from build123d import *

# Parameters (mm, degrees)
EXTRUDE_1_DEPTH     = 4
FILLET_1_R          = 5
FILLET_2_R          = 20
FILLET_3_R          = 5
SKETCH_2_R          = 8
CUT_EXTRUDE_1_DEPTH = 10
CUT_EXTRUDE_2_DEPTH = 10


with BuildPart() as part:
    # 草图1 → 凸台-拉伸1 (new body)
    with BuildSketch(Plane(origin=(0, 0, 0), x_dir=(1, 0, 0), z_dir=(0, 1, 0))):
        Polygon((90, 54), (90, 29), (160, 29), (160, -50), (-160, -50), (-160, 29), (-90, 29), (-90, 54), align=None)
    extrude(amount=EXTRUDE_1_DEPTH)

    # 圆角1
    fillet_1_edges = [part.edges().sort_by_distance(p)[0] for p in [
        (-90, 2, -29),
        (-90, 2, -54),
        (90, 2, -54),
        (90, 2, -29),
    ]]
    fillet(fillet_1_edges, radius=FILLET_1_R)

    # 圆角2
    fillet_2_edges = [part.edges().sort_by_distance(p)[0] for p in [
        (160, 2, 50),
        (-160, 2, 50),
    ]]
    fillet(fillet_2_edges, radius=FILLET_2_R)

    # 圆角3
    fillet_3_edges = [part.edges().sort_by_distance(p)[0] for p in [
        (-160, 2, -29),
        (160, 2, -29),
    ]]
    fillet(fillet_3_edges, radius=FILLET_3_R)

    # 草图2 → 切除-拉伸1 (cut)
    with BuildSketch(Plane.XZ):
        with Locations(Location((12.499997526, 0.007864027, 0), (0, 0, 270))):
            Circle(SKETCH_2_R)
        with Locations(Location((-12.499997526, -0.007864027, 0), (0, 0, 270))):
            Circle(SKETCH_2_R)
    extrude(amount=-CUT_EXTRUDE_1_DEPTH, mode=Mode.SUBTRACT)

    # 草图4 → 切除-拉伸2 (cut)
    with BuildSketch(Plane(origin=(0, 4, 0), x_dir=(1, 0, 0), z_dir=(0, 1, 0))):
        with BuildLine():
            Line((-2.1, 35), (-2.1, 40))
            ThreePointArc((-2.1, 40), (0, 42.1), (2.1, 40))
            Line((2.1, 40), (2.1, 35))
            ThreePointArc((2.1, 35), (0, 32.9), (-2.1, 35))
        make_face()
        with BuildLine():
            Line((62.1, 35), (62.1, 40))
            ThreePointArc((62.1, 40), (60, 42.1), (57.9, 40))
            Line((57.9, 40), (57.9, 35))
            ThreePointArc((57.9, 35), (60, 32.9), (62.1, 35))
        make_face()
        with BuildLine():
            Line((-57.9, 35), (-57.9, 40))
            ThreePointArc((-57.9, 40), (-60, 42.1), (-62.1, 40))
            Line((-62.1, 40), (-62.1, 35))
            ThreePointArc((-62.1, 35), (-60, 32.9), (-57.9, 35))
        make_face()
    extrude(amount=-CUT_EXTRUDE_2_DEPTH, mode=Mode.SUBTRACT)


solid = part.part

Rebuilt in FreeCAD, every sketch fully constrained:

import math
import FreeCAD as App
import Part
import Sketcher
from FreeCAD import Vector


def edges_at(feature, points):
    """Names of the edges that pass closest to the given points."""
    edges = feature.Shape.Edges
    near = lambda p: min(range(len(edges)), key=lambda i: edges[i].distToShape(Part.Vertex(*p))[0])
    return sorted({f"Edge{near(p) + 1}" for p in points})

doc = App.newDocument("Part")
params = doc.addObject("Spreadsheet::Sheet", "Params")
for row, (alias, value) in enumerate([
    ("sketch1_width", "180 mm"),
    ("sketch1_width2", "70 mm"),
    ("sketch1_height", "25 mm"),
    ("sketch1_height2", "79 mm"),
    ("pad1_length", "4 mm"),
    ("fillet_radius", "5 mm"),
    ("fillet2_radius", "20 mm"),
    ("fillet3_radius", "5 mm"),
    ("sketch2_diameter", "16 mm"),
    ("pocket1_length", "10 mm"),
    ("sketch3_radius", "2.1 mm"),
    ("sketch3_height", "5 mm"),
    ("pocket2_length", "10 mm"),
], start=1):
    params.set(f"A{row}", alias)
    params.set(f"B{row}", "=" + value)
    params.setAlias(f"B{row}", alias)

body = doc.addObject("PartDesign::Body", "Body")

# Sketch on XZ plane
sketch1 = body.newObject("Sketcher::SketchObject", "Sketch")
sketch1.AttachmentSupport = (doc.getObject("XZ_Plane"), [""])
sketch1.MapMode = "FlatFace"
sketch1.addGeometry([
    Part.LineSegment(Vector(90, -29, 0), Vector(90, -54, 0)),  # 0
    Part.LineSegment(Vector(90, -54, 0), Vector(-90, -54, 0)),  # 1
    Part.LineSegment(Vector(-90, -54, 0), Vector(-90, -29, 0)),  # 2
    Part.LineSegment(Vector(-90, -29, 0), Vector(-160, -29, 0)),  # 3
    Part.LineSegment(Vector(-160, -29, 0), Vector(-160, 50, 0)),  # 4
    Part.LineSegment(Vector(-160, 50, 0), Vector(160, 50, 0)),  # 5
    Part.LineSegment(Vector(160, 50, 0), Vector(160, -29, 0)),  # 6
    Part.LineSegment(Vector(160, -29, 0), Vector(90, -29, 0)),  # 7
], False)
sketch1.addConstraint([
    Sketcher.Constraint("Coincident", 0, 2, 1, 1),
    Sketcher.Constraint("Coincident", 1, 2, 2, 1),
    Sketcher.Constraint("Coincident", 2, 2, 3, 1),
    Sketcher.Constraint("Coincident", 3, 2, 4, 1),
    Sketcher.Constraint("Coincident", 4, 2, 5, 1),
    Sketcher.Constraint("Coincident", 5, 2, 6, 1),
    Sketcher.Constraint("Coincident", 6, 2, 7, 1),
    Sketcher.Constraint("Coincident", 7, 2, 0, 1),
    Sketcher.Constraint("Vertical", 0),
    Sketcher.Constraint("Horizontal", 1),
    Sketcher.Constraint("Vertical", 2),
    Sketcher.Constraint("Horizontal", 3),
    Sketcher.Constraint("Vertical", 4),
    Sketcher.Constraint("Horizontal", 5),
    Sketcher.Constraint("Vertical", 6),
    Sketcher.Constraint("Horizontal", 7),
    Sketcher.Constraint("Symmetric", 3, 2, 6, 2, -2),
    Sketcher.Constraint("Equal", 3, 7),
    Sketcher.Constraint("DistanceX", 1, 2, 1, 1, 180.0),
    Sketcher.Constraint("DistanceX", 3, 2, 3, 1, 70.0),
    Sketcher.Constraint("DistanceY", 0, 2, 0, 1, 25.0),
    Sketcher.Constraint("DistanceY", 4, 1, 4, 2, 79.0),
    Sketcher.Constraint("DistanceY", 0, 2, -1, 1, 54.0),
])
sketch1.setExpression("Constraints[18]", "Params.sketch1_width")
sketch1.setExpression("Constraints[19]", "Params.sketch1_width2")
sketch1.setExpression("Constraints[20]", "Params.sketch1_height")
sketch1.setExpression("Constraints[21]", "Params.sketch1_height2")
pad1 = body.newObject("PartDesign::Pad", "Pad")
pad1.Profile = sketch1
pad1.setExpression("Length", "Params.pad1_length")
pad1.Reversed = True
doc.recompute()

fillet = body.newObject("PartDesign::Fillet", "Fillet")
fillet.Base = (pad1, edges_at(pad1, [
    (-90, 2, -29),
    (-90, 2, -54),
    (90, 2, -54),
    (90, 2, -29),
]))
fillet.setExpression("Radius", "Params.fillet_radius")
doc.recompute()

fillet2 = body.newObject("PartDesign::Fillet", "Fillet001")
fillet2.Base = (fillet, edges_at(fillet, [(160, 2, 50), (-160, 2, 50)]))
fillet2.setExpression("Radius", "Params.fillet2_radius")
doc.recompute()

fillet3 = body.newObject("PartDesign::Fillet", "Fillet002")
fillet3.Base = (fillet2, edges_at(fillet2, [(-160, 2, -29), (160, 2, -29)]))
fillet3.setExpression("Radius", "Params.fillet3_radius")

# Sketch on XZ plane
sketch2 = body.newObject("Sketcher::SketchObject", "Sketch001")
sketch2.AttachmentSupport = (doc.getObject("XZ_Plane"), [""])
sketch2.MapMode = "FlatFace"
sketch2.addGeometry([
    Part.Circle(Vector(12, 0, 0), Vector(0, 0, 1), 8),
    Part.Circle(Vector(-12, 0, 0), Vector(0, 0, 1), 8),
], False)
sketch2.addConstraint([
    Sketcher.Constraint("Equal", 0, 1),
    Sketcher.Constraint("Symmetric", 0, 3, 1, 3, -1, 1),
    Sketcher.Constraint("Diameter", 0, 16.0),
    Sketcher.Constraint("DistanceY", 1, 3, 0, 3, 0.015728),
    Sketcher.Constraint("DistanceX", -1, 1, 0, 3, 12.499998),
])
sketch2.setExpression("Constraints[2]", "Params.sketch2_diameter")
pocket1 = body.newObject("PartDesign::Pocket", "Pocket")
pocket1.Profile = sketch2
pocket1.setExpression("Length", "Params.pocket1_length")

# Sketch on XZ plane
sketch3 = body.newObject("Sketcher::SketchObject", "Sketch002")
sketch3.AttachmentSupport = (doc.getObject("XZ_Plane"), [""])
sketch3.MapMode = "FlatFace"
sketch3.AttachmentOffset = App.Placement(Vector(0, 0, -4), App.Rotation())
sketch3.addGeometry([
    Part.LineSegment(Vector(-2.1, -40, 0), Vector(-2.1, -35, 0)),  # 0
    Part.ArcOfCircle(Part.Circle(Vector(0, -35, 0), Vector(0, 0, 1), 2.1), math.radians(0), math.radians(180)),  # 1
    Part.LineSegment(Vector(2.1, -35, 0), Vector(2.1, -40, 0)),  # 2
    Part.ArcOfCircle(Part.Circle(Vector(0, -40, 0), Vector(0, 0, 1), 2.1), math.radians(180), math.radians(360)),  # 3
    Part.LineSegment(Vector(62.1, -35, 0), Vector(62.1, -40, 0)),  # 4
    Part.ArcOfCircle(Part.Circle(Vector(60, -40, 0), Vector(0, 0, 1), 2.1), math.radians(180), math.radians(360)),  # 5
    Part.LineSegment(Vector(57.9, -40, 0), Vector(57.9, -35, 0)),  # 6
    Part.ArcOfCircle(Part.Circle(Vector(60, -35, 0), Vector(0, 0, 1), 2.1), math.radians(0), math.radians(180)),  # 7
    Part.LineSegment(Vector(-57.9, -35, 0), Vector(-57.9, -40, 0)),  # 8
    Part.ArcOfCircle(Part.Circle(Vector(-60, -40, 0), Vector(0, 0, 1), 2.1), math.radians(180), math.radians(360)),  # 9
    Part.LineSegment(Vector(-62.1, -40, 0), Vector(-62.1, -35, 0)),  # 10
    Part.ArcOfCircle(Part.Circle(Vector(-60, -35, 0), Vector(0, 0, 1), 2.1), math.radians(0), math.radians(180)),  # 11
], False)
sketch3.addConstraint([
    Sketcher.Constraint("Tangent", 0, 2, 1, 2),
    Sketcher.Constraint("Tangent", 1, 1, 2, 1),
    Sketcher.Constraint("Tangent", 2, 2, 3, 2),
    Sketcher.Constraint("Tangent", 3, 1, 0, 1),
    Sketcher.Constraint("Tangent", 4, 2, 5, 2),
    Sketcher.Constraint("Tangent", 5, 1, 6, 1),
    Sketcher.Constraint("Tangent", 6, 2, 7, 2),
    Sketcher.Constraint("Tangent", 7, 1, 4, 1),
    Sketcher.Constraint("Tangent", 8, 2, 9, 2),
    Sketcher.Constraint("Tangent", 9, 1, 10, 1),
    Sketcher.Constraint("Tangent", 10, 2, 11, 2),
    Sketcher.Constraint("Tangent", 11, 1, 8, 1),
    Sketcher.Constraint("Vertical", 0),
    Sketcher.Constraint("Vertical", 2),
    Sketcher.Constraint("Vertical", 4),
    Sketcher.Constraint("Vertical", 6),
    Sketcher.Constraint("Vertical", 8),
    Sketcher.Constraint("Vertical", 10),
    Sketcher.Constraint("Equal", 3, 5),
    Sketcher.Constraint("Equal", 7, 9),
    Sketcher.Constraint("Symmetric", 5, 3, 9, 3, -2),
    Sketcher.Constraint("PointOnObject", 1, 3, -2),
    Sketcher.Constraint("Horizontal", 3, 3, 5, 3),
    Sketcher.Constraint("Horizontal", 1, 3, 7, 3),
    Sketcher.Constraint("Horizontal", 7, 3, 11, 3),
    Sketcher.Constraint("Radius", 1, 2.1),
    Sketcher.Constraint("DistanceY", 0, 1, 0, 2, 5.0),
    Sketcher.Constraint("DistanceY", 1, 3, -1, 1, 35.0),
    Sketcher.Constraint("DistanceX", -1, 1, 5, 3, 60.0),
])
sketch3.setExpression("Constraints[25]", "Params.sketch3_radius")
sketch3.setExpression("Constraints[26]", "Params.sketch3_height")
pocket2 = body.newObject("PartDesign::Pocket", "Pocket001")
pocket2.Profile = sketch3
pocket2.setExpression("Length", "Params.pocket2_length")
pocket2.Reversed = True

doc.recompute()
